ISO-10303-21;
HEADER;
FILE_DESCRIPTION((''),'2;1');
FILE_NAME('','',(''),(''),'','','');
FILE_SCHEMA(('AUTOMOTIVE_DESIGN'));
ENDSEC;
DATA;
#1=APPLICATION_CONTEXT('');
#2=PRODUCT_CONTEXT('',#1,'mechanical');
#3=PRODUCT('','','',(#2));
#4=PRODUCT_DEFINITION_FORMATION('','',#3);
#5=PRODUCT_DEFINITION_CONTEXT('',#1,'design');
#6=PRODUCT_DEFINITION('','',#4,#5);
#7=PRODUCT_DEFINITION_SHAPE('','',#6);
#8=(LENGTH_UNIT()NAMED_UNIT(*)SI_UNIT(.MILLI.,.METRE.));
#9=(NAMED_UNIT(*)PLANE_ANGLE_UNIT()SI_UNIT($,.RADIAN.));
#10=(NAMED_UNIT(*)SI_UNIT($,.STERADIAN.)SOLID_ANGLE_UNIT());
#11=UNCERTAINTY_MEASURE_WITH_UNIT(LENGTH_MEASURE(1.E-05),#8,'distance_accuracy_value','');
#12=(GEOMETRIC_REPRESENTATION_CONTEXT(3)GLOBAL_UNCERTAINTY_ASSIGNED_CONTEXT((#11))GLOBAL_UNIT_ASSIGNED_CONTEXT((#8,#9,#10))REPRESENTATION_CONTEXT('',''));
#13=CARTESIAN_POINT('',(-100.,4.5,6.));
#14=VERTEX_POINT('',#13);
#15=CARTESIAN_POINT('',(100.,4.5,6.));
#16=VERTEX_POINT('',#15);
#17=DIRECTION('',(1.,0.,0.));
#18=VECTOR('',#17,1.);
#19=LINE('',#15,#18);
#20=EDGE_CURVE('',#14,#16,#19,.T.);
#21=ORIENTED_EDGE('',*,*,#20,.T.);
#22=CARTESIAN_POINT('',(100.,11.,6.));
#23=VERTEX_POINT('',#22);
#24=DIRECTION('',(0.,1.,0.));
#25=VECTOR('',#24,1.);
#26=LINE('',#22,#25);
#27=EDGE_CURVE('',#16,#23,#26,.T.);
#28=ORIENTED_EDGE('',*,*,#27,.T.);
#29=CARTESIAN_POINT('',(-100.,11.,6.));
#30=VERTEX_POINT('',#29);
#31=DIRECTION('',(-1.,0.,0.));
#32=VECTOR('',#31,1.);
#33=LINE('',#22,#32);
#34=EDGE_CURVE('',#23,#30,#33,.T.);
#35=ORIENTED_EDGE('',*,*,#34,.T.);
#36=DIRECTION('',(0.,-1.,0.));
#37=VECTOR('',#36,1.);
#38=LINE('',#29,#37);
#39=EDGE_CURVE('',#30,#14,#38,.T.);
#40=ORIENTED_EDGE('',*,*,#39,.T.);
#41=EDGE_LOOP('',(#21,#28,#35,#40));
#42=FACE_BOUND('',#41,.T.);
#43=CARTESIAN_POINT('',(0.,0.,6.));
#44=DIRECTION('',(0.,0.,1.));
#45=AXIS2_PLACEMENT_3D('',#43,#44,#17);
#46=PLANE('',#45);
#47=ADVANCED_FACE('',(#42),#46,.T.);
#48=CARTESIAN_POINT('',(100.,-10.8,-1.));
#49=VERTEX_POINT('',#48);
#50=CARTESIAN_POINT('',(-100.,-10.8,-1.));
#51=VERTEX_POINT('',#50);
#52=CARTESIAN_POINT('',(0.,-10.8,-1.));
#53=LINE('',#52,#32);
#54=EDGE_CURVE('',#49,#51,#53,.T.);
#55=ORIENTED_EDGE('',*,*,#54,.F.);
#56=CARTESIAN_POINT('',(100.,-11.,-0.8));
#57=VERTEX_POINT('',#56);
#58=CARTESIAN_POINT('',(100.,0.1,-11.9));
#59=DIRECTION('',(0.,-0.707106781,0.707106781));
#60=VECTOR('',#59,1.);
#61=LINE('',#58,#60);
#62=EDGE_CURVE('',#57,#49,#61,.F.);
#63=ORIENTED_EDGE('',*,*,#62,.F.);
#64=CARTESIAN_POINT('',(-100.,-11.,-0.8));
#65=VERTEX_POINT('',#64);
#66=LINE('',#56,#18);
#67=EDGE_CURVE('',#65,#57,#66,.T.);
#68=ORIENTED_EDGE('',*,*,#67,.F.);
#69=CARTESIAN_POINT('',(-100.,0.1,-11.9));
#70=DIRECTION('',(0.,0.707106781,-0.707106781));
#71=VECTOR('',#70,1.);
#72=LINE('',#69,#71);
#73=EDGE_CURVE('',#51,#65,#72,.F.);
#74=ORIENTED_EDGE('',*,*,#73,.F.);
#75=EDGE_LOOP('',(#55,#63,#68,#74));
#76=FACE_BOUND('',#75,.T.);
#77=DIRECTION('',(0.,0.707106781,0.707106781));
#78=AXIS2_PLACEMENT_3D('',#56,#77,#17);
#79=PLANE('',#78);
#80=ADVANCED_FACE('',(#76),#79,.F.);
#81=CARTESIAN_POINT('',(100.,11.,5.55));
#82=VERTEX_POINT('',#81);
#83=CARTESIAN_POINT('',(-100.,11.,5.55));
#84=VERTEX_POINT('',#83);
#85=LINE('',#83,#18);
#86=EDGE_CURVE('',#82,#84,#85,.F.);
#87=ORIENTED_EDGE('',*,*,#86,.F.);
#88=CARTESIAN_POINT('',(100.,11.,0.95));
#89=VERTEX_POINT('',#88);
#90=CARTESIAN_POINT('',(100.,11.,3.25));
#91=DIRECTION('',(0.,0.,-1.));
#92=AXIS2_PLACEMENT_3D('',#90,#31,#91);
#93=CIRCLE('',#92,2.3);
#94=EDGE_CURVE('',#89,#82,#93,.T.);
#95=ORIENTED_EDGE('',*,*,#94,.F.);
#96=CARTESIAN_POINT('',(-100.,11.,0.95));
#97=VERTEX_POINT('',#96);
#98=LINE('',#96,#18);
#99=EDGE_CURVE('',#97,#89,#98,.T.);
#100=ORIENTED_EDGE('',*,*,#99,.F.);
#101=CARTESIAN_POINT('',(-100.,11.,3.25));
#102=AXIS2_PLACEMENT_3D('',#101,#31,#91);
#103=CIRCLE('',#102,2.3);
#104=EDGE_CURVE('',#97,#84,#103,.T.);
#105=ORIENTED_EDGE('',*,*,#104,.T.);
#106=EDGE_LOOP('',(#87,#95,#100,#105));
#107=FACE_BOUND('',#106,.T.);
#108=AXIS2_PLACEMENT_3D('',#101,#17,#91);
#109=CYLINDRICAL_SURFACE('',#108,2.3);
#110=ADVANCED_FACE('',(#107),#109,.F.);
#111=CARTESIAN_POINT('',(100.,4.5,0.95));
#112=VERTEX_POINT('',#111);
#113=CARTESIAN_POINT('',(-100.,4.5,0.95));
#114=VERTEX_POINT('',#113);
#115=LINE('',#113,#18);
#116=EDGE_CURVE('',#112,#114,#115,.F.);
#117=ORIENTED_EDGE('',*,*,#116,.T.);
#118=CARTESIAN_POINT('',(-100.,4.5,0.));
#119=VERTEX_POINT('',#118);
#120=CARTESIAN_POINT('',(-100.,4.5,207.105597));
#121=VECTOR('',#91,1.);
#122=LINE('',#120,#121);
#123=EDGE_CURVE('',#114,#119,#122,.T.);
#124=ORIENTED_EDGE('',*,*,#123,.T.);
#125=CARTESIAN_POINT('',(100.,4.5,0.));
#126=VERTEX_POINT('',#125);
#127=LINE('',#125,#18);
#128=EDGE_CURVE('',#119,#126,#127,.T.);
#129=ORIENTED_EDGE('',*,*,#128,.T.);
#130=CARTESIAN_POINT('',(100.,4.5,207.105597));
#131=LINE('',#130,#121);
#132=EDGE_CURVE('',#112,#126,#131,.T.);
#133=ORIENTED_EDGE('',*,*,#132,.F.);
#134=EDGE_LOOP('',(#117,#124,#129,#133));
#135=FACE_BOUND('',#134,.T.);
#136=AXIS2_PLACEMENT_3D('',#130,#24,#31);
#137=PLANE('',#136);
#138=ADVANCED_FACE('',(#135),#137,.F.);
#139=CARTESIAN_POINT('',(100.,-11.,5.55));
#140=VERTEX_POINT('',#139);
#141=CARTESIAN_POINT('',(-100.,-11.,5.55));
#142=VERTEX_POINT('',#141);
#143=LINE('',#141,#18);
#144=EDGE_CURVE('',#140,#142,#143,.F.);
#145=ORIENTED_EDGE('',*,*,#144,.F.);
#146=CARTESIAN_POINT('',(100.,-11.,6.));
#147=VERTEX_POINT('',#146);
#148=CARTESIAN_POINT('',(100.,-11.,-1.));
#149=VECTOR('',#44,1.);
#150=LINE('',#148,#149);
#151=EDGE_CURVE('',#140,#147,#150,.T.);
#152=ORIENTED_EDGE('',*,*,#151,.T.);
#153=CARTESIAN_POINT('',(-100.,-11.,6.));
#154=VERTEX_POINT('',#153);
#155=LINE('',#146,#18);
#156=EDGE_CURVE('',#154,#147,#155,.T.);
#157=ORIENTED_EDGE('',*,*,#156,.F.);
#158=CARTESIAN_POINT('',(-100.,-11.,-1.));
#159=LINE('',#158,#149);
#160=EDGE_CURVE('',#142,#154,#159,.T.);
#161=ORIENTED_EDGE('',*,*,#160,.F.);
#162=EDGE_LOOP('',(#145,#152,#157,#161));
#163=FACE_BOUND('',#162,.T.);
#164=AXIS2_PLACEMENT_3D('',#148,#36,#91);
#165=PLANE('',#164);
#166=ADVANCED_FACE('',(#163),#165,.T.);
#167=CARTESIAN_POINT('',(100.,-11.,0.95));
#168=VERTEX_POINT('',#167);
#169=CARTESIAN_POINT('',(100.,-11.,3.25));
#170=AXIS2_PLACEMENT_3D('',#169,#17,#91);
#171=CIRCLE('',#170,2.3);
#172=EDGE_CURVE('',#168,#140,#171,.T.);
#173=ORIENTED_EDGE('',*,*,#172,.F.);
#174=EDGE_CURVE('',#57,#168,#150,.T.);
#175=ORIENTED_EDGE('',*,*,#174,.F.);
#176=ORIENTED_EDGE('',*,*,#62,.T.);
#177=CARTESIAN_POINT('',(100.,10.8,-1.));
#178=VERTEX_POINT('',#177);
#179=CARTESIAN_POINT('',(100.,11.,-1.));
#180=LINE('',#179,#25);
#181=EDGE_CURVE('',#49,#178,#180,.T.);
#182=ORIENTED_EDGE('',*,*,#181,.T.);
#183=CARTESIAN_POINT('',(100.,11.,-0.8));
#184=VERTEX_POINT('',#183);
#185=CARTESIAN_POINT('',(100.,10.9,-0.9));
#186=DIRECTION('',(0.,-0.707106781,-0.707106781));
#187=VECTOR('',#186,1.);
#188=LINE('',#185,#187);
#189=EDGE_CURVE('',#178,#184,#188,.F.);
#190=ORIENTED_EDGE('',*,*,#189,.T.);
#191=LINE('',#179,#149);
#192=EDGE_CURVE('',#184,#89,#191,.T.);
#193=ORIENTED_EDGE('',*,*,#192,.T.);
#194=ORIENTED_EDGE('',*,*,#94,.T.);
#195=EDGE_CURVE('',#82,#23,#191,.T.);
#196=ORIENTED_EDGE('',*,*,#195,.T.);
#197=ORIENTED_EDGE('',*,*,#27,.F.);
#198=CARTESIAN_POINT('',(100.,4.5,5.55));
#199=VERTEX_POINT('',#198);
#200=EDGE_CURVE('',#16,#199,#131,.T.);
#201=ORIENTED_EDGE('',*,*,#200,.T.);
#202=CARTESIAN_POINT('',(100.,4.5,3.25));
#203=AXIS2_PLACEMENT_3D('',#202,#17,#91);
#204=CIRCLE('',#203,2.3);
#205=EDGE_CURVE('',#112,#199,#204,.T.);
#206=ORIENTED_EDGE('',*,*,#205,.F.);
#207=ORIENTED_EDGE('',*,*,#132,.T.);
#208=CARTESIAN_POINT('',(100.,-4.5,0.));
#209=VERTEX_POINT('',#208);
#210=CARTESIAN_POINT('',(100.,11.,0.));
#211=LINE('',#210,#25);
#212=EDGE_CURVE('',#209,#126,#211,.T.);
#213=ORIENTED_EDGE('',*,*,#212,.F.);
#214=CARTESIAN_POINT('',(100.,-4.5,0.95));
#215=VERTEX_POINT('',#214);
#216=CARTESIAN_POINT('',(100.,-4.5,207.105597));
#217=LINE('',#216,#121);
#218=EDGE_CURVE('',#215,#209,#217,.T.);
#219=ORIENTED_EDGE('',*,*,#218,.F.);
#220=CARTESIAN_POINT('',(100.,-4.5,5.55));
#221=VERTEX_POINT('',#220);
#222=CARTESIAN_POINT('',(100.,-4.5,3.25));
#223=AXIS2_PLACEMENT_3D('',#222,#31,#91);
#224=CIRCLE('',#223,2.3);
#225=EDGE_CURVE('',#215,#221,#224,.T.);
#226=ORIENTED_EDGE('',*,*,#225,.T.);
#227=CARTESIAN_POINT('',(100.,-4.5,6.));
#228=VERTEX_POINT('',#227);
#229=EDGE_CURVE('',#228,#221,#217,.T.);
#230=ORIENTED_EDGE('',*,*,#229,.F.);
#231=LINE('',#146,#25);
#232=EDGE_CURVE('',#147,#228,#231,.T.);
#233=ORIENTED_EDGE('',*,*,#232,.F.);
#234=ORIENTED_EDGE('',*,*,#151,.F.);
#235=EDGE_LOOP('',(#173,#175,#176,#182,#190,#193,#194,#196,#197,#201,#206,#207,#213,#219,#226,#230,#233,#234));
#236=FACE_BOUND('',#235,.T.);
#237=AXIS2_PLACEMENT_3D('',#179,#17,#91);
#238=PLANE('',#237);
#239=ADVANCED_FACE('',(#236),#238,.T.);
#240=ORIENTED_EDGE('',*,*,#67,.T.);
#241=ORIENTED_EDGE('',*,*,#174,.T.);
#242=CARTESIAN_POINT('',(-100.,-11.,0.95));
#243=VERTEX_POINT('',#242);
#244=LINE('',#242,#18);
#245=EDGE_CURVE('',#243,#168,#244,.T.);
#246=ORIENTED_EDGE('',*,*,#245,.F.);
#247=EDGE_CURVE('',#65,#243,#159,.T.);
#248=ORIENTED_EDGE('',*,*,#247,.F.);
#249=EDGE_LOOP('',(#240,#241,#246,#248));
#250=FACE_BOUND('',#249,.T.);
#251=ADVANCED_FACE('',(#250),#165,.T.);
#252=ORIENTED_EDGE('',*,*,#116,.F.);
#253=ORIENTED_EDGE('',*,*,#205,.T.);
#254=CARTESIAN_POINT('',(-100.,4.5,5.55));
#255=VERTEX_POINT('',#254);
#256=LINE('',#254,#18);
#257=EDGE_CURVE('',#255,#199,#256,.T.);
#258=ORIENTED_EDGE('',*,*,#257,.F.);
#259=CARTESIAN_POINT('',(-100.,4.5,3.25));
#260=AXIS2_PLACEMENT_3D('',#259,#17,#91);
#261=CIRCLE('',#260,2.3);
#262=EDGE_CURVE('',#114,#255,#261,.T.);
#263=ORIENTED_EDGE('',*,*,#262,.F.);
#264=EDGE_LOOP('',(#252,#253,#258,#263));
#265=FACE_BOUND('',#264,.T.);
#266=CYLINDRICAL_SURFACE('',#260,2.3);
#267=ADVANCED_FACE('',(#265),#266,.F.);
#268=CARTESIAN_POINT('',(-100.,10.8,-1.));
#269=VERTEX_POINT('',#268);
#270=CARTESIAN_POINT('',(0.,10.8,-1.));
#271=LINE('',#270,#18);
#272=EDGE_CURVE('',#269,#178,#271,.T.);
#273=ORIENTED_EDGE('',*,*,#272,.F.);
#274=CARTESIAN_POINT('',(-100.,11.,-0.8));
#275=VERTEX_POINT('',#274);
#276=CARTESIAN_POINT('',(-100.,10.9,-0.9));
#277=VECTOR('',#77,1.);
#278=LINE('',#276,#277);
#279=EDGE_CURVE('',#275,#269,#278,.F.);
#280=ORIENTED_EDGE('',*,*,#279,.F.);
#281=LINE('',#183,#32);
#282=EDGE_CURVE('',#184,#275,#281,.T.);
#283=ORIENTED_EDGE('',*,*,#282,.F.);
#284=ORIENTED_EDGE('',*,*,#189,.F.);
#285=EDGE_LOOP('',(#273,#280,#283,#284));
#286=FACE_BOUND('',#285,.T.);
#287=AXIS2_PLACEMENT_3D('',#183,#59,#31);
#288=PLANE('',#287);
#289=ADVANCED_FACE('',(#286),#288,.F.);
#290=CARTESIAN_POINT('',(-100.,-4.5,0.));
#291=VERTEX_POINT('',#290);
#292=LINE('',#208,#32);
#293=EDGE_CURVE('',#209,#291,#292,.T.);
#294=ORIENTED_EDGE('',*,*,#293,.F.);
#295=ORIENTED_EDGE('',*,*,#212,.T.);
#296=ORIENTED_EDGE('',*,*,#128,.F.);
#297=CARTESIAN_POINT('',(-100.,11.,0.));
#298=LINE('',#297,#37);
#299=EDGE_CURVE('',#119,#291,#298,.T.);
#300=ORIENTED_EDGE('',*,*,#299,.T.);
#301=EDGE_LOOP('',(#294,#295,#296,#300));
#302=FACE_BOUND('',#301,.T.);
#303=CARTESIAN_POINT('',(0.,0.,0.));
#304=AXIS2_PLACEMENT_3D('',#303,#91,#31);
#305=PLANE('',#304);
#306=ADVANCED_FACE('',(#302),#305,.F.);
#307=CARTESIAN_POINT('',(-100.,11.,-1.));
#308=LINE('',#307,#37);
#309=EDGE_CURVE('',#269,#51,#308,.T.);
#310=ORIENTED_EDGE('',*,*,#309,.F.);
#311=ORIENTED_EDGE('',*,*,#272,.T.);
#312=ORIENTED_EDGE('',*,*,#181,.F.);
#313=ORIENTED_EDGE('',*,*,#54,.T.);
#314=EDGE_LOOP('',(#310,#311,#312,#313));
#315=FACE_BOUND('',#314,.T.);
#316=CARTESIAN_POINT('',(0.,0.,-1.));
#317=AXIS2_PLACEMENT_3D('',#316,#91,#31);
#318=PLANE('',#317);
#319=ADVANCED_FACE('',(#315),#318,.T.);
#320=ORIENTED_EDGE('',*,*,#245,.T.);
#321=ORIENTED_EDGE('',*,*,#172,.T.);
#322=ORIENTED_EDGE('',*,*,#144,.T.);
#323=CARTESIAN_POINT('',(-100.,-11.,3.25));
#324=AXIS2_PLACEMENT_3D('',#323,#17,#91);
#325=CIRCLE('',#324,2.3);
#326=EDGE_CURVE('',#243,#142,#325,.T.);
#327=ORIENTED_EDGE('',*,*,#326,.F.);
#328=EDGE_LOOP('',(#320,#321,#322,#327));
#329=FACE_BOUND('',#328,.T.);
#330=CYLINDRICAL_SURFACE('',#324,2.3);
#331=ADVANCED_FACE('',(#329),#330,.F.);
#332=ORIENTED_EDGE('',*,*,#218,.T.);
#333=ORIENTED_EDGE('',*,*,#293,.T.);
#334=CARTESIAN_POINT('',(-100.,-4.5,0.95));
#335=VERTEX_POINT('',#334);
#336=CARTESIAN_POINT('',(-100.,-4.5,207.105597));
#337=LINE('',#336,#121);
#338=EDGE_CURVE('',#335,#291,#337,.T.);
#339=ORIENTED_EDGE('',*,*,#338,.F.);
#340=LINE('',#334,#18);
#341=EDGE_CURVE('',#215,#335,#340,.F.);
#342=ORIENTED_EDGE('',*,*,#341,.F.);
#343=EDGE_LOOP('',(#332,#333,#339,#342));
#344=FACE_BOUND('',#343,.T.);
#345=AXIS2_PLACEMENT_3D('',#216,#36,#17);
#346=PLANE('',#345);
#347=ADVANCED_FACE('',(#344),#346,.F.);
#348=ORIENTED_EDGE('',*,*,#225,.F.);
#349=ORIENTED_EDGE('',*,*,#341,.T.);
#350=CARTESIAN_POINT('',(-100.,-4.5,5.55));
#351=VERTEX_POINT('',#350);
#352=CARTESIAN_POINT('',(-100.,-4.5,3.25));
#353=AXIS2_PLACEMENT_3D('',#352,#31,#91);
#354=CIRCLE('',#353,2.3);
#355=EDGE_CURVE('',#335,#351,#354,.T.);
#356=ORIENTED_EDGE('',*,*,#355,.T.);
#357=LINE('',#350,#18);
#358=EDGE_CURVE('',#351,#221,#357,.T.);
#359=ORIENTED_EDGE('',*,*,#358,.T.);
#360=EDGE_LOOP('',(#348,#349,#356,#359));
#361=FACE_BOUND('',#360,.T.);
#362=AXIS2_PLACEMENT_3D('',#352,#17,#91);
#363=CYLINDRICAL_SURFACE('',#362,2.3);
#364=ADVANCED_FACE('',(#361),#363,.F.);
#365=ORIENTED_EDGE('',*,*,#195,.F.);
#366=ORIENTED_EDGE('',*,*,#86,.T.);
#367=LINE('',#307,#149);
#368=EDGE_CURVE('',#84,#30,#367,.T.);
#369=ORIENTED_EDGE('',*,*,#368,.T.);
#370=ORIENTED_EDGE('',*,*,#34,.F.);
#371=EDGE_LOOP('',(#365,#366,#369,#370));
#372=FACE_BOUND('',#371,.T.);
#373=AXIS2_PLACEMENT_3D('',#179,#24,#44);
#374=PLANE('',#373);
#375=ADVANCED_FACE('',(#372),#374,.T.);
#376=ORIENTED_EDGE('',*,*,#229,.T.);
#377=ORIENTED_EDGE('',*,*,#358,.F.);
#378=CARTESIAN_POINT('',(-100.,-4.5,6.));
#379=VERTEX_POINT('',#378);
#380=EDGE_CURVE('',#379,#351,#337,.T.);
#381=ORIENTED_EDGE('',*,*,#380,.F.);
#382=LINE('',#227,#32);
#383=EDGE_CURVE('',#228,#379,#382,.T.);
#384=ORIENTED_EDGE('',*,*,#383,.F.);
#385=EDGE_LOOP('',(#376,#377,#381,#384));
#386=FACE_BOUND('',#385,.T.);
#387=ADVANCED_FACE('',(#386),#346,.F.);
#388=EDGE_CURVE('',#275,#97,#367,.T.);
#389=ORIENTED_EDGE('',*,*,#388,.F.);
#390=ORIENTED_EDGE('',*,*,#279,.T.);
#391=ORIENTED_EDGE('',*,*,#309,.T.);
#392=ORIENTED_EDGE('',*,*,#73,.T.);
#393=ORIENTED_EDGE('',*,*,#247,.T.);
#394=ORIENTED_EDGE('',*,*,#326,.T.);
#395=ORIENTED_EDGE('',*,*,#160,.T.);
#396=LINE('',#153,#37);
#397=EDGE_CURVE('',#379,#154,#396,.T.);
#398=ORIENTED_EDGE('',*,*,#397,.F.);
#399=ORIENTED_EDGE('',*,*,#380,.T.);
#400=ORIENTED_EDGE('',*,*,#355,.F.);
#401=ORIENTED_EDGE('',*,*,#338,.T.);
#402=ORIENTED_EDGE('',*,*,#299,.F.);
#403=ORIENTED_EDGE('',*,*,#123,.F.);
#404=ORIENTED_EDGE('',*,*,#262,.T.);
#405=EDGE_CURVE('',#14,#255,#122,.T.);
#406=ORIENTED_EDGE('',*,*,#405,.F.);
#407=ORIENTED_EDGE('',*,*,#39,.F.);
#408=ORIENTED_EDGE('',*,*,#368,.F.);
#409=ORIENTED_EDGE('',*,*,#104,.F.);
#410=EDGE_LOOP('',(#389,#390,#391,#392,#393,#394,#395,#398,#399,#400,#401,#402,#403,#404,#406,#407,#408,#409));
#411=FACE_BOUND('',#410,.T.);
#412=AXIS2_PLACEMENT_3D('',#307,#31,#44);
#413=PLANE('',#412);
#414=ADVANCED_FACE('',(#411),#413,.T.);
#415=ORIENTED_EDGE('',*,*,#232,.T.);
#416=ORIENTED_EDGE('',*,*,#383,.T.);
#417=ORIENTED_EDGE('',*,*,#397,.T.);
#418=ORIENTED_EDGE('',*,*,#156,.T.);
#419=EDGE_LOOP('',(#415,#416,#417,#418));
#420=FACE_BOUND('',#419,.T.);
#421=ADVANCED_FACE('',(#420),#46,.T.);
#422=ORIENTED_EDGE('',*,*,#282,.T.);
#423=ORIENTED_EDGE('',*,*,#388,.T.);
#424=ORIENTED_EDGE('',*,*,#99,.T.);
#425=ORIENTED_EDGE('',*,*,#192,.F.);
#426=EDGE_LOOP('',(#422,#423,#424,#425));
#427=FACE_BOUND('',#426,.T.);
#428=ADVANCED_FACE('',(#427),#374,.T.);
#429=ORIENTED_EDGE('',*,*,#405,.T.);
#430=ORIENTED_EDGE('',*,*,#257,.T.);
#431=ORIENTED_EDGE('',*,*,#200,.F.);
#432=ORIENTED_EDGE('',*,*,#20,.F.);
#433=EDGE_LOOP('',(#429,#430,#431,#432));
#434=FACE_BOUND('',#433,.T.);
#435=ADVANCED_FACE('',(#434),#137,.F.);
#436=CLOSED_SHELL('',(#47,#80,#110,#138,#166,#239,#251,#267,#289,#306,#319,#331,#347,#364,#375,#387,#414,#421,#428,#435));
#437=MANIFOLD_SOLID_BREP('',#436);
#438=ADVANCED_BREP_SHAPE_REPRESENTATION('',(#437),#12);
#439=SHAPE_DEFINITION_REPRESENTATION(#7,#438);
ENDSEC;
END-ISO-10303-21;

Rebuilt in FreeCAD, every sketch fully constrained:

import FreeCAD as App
import Part
import Sketcher

V = App.Vector
Q = App.Units.Quantity


def edges_at(feature, points):
    """Names of the edges that pass closest to the given points."""
    edges = feature.Shape.Edges
    near = lambda p: min(range(len(edges)), key=lambda i: edges[i].distToShape(Part.Vertex(*p))[0])
    return sorted({f"Edge{near(p) + 1}" for p in points})


def add_polygon(sketch, points):
    """Adds a closed chain of lines whose ends are joined by coincident constraints."""
    first, n = sketch.GeometryCount, len(points)
    for a, b in zip(points, points[1:] + points[:1]):
        sketch.addGeometry(Part.LineSegment(App.Vector(*a, 0), App.Vector(*b, 0)), False)
    for i in range(n):
        sketch.addConstraint(Sketcher.Constraint("Coincident", first + i, 2, first + (i + 1) % n, 1))

doc = App.newDocument("Part")
params = doc.addObject("Spreadsheet::Sheet", "Params")
for row, (alias, value) in enumerate([
    ("sketch1_width", "200 mm"),
    ("sketch1_height", "22 mm"),
    ("pad1_length", "1 mm"),
    ("sketch2_width", "200 mm"),
    ("sketch2_height", "6.5 mm"),
    ("pad2_length", "6 mm"),
    ("sketch3_diameter", "4.6 mm"),
    ("pocket1_length", "203.563886 mm"),
    ("sketch4_diameter", "4.6 mm"),
    ("pocket2_length", "203.563886 mm"),
    ("chamfer_size", "0.2 mm"),
], start=1):
    params.set(f"A{row}", alias)
    params.set(f"B{row}", "=" + value)
    params.setAlias(f"B{row}", alias)

body = doc.addObject("PartDesign::Body", "Body")

sketch1 = body.newObject("Sketcher::SketchObject", "Sketch")
sketch1.AttachmentSupport = (doc.getObject("XY_Plane"), [""])
sketch1.MapMode = "FlatFace"
add_polygon(sketch1, [(-100, 11), (-100, -11), (100, -11), (100, 11)])
sketch1.addConstraint([
    Sketcher.Constraint("Vertical", 0),
    Sketcher.Constraint("Horizontal", 1),
    Sketcher.Constraint("Vertical", 2),
    Sketcher.Constraint("Horizontal", 3),
    Sketcher.Constraint("Symmetric", 0, 2, 2, 2, -1, 1),
    Sketcher.Constraint("DistanceX", 1, 1, 1, 2, Q("200 mm")),
    Sketcher.Constraint("DistanceY", 0, 2, 0, 1, Q("22 mm")),
])
sketch1.setExpression("Constraints[9]", "Params.sketch1_width")
sketch1.setExpression("Constraints[10]", "Params.sketch1_height")
pad1 = body.newObject("PartDesign::Pad", "Pad")
pad1.Profile = sketch1
pad1.setExpression("Length", "Params.pad1_length")
pad1.Reversed = True

sketch2 = body.newObject("Sketcher::SketchObject", "Sketch001")
sketch2.AttachmentSupport = (doc.getObject("XY_Plane"), [""])
sketch2.MapMode = "FlatFace"
add_polygon(sketch2, [(-100, 11), (-100, 4), (100, 4), (100, 11)])
add_polygon(sketch2, [(-100, -4), (-100, -11), (100, -11), (100, -4)])
sketch2.addConstraint([
    Sketcher.Constraint("Vertical", 0),
    Sketcher.Constraint("Horizontal", 1),
    Sketcher.Constraint("Vertical", 2),
    Sketcher.Constraint("Horizontal", 3),
    Sketcher.Constraint("Vertical", 4),
    Sketcher.Constraint("Horizontal", 5),
    Sketcher.Constraint("Vertical", 6),
    Sketcher.Constraint("Horizontal", 7),
    Sketcher.Constraint("Symmetric", 2, 2, 4, 2, -1, 1),
    Sketcher.Constraint("Symmetric", 0, 2, 6, 2, -1, 1),
    Sketcher.Constraint("Vertical", 3, 2, 4, 2),
    Sketcher.Constraint("DistanceX", 1, 1, 1, 2, Q("200 mm")),
    Sketcher.Constraint("DistanceY", 0, 2, 0, 1, Q("6.5 mm")),
    Sketcher.Constraint("DistanceY", -1, 1, 2, 2, Q("11 mm")),
])
sketch2.setExpression("Constraints[19]", "Params.sketch2_width")
sketch2.setExpression("Constraints[20]", "Params.sketch2_height")
pad2 = body.newObject("PartDesign::Pad", "Pad001")
pad2.Profile = sketch2
pad2.setExpression("Length", "Params.pad2_length")

sketch3 = body.newObject("Sketcher::SketchObject", "Sketch002")
sketch3.AttachmentSupport = (doc.getObject("YZ_Plane"), [""])
sketch3.MapMode = "FlatFace"
sketch3.addGeometry(Part.Circle(V(4.5, 3.2, 0), V(0, 0, 1), 2.3), False)
sketch3.addConstraint([
    Sketcher.Constraint("Diameter", 0, Q("4.6 mm")),
    Sketcher.Constraint("DistanceX", -1, 1, 0, 3, Q("4.5 mm")),
    Sketcher.Constraint("DistanceY", -1, 1, 0, 3, Q("3.25 mm")),
])
sketch3.setExpression("Constraints[0]", "Params.sketch3_diameter")
pocket1 = body.newObject("PartDesign::Pocket", "Pocket")
pocket1.Profile = sketch3
pocket1.setExpression("Length", "Params.pocket1_length")
pocket1.Midplane = True
doc.recompute()

datumplane = body.newObject("PartDesign::Plane", "DatumPlane")
datumplane.AttachmentSupport = (doc.getObject("XZ_Plane"), [""])
datumplane.MapMode = "FlatFace"
datumplane.AttachmentOffset = App.Placement(V(0, 0, -7.75), App.Rotation())
mirrored = body.newObject("PartDesign::Mirrored", "Mirrored")
mirrored.Originals = [pocket1]
mirrored.MirrorPlane = (datumplane, [""])
body.Tip = mirrored
doc.recompute()

mirrored2 = body.newObject("PartDesign::Mirrored", "Mirrored001")
mirrored2.Originals = [pocket1]
mirrored2.MirrorPlane = (doc.getObject("XZ_Plane"), [""])
body.Tip = mirrored2

sketch4 = body.newObject("Sketcher::SketchObject", "Sketch003")
sketch4.AttachmentSupport = (doc.getObject("YZ_Plane"), [""])
sketch4.MapMode = "FlatFace"
sketch4.addGeometry(Part.Circle(V(-11, 3.2, 0), V(0, 0, 1), 2.3), False)
sketch4.addConstraint([
    Sketcher.Constraint("Diameter", 0, Q("4.6 mm")),
    Sketcher.Constraint("DistanceX", 0, 3, -1, 1, Q("11 mm")),
    Sketcher.Constraint("DistanceY", -1, 1, 0, 3, Q("3.25 mm")),
])
sketch4.setExpression("Constraints[0]", "Params.sketch4_diameter")
pocket2 = body.newObject("PartDesign::Pocket", "Pocket001")
pocket2.Profile = sketch4
pocket2.setExpression("Length", "Params.pocket2_length")
pocket2.Midplane = True
doc.recompute()

chamfer = body.newObject("PartDesign::Chamfer", "Chamfer")
chamfer.Base = (pocket2, edges_at(pocket2, [(0, 11, -1), (0, -11, -1)]))
chamfer.setExpression("Size", "Params.chamfer_size")

doc.recompute()
